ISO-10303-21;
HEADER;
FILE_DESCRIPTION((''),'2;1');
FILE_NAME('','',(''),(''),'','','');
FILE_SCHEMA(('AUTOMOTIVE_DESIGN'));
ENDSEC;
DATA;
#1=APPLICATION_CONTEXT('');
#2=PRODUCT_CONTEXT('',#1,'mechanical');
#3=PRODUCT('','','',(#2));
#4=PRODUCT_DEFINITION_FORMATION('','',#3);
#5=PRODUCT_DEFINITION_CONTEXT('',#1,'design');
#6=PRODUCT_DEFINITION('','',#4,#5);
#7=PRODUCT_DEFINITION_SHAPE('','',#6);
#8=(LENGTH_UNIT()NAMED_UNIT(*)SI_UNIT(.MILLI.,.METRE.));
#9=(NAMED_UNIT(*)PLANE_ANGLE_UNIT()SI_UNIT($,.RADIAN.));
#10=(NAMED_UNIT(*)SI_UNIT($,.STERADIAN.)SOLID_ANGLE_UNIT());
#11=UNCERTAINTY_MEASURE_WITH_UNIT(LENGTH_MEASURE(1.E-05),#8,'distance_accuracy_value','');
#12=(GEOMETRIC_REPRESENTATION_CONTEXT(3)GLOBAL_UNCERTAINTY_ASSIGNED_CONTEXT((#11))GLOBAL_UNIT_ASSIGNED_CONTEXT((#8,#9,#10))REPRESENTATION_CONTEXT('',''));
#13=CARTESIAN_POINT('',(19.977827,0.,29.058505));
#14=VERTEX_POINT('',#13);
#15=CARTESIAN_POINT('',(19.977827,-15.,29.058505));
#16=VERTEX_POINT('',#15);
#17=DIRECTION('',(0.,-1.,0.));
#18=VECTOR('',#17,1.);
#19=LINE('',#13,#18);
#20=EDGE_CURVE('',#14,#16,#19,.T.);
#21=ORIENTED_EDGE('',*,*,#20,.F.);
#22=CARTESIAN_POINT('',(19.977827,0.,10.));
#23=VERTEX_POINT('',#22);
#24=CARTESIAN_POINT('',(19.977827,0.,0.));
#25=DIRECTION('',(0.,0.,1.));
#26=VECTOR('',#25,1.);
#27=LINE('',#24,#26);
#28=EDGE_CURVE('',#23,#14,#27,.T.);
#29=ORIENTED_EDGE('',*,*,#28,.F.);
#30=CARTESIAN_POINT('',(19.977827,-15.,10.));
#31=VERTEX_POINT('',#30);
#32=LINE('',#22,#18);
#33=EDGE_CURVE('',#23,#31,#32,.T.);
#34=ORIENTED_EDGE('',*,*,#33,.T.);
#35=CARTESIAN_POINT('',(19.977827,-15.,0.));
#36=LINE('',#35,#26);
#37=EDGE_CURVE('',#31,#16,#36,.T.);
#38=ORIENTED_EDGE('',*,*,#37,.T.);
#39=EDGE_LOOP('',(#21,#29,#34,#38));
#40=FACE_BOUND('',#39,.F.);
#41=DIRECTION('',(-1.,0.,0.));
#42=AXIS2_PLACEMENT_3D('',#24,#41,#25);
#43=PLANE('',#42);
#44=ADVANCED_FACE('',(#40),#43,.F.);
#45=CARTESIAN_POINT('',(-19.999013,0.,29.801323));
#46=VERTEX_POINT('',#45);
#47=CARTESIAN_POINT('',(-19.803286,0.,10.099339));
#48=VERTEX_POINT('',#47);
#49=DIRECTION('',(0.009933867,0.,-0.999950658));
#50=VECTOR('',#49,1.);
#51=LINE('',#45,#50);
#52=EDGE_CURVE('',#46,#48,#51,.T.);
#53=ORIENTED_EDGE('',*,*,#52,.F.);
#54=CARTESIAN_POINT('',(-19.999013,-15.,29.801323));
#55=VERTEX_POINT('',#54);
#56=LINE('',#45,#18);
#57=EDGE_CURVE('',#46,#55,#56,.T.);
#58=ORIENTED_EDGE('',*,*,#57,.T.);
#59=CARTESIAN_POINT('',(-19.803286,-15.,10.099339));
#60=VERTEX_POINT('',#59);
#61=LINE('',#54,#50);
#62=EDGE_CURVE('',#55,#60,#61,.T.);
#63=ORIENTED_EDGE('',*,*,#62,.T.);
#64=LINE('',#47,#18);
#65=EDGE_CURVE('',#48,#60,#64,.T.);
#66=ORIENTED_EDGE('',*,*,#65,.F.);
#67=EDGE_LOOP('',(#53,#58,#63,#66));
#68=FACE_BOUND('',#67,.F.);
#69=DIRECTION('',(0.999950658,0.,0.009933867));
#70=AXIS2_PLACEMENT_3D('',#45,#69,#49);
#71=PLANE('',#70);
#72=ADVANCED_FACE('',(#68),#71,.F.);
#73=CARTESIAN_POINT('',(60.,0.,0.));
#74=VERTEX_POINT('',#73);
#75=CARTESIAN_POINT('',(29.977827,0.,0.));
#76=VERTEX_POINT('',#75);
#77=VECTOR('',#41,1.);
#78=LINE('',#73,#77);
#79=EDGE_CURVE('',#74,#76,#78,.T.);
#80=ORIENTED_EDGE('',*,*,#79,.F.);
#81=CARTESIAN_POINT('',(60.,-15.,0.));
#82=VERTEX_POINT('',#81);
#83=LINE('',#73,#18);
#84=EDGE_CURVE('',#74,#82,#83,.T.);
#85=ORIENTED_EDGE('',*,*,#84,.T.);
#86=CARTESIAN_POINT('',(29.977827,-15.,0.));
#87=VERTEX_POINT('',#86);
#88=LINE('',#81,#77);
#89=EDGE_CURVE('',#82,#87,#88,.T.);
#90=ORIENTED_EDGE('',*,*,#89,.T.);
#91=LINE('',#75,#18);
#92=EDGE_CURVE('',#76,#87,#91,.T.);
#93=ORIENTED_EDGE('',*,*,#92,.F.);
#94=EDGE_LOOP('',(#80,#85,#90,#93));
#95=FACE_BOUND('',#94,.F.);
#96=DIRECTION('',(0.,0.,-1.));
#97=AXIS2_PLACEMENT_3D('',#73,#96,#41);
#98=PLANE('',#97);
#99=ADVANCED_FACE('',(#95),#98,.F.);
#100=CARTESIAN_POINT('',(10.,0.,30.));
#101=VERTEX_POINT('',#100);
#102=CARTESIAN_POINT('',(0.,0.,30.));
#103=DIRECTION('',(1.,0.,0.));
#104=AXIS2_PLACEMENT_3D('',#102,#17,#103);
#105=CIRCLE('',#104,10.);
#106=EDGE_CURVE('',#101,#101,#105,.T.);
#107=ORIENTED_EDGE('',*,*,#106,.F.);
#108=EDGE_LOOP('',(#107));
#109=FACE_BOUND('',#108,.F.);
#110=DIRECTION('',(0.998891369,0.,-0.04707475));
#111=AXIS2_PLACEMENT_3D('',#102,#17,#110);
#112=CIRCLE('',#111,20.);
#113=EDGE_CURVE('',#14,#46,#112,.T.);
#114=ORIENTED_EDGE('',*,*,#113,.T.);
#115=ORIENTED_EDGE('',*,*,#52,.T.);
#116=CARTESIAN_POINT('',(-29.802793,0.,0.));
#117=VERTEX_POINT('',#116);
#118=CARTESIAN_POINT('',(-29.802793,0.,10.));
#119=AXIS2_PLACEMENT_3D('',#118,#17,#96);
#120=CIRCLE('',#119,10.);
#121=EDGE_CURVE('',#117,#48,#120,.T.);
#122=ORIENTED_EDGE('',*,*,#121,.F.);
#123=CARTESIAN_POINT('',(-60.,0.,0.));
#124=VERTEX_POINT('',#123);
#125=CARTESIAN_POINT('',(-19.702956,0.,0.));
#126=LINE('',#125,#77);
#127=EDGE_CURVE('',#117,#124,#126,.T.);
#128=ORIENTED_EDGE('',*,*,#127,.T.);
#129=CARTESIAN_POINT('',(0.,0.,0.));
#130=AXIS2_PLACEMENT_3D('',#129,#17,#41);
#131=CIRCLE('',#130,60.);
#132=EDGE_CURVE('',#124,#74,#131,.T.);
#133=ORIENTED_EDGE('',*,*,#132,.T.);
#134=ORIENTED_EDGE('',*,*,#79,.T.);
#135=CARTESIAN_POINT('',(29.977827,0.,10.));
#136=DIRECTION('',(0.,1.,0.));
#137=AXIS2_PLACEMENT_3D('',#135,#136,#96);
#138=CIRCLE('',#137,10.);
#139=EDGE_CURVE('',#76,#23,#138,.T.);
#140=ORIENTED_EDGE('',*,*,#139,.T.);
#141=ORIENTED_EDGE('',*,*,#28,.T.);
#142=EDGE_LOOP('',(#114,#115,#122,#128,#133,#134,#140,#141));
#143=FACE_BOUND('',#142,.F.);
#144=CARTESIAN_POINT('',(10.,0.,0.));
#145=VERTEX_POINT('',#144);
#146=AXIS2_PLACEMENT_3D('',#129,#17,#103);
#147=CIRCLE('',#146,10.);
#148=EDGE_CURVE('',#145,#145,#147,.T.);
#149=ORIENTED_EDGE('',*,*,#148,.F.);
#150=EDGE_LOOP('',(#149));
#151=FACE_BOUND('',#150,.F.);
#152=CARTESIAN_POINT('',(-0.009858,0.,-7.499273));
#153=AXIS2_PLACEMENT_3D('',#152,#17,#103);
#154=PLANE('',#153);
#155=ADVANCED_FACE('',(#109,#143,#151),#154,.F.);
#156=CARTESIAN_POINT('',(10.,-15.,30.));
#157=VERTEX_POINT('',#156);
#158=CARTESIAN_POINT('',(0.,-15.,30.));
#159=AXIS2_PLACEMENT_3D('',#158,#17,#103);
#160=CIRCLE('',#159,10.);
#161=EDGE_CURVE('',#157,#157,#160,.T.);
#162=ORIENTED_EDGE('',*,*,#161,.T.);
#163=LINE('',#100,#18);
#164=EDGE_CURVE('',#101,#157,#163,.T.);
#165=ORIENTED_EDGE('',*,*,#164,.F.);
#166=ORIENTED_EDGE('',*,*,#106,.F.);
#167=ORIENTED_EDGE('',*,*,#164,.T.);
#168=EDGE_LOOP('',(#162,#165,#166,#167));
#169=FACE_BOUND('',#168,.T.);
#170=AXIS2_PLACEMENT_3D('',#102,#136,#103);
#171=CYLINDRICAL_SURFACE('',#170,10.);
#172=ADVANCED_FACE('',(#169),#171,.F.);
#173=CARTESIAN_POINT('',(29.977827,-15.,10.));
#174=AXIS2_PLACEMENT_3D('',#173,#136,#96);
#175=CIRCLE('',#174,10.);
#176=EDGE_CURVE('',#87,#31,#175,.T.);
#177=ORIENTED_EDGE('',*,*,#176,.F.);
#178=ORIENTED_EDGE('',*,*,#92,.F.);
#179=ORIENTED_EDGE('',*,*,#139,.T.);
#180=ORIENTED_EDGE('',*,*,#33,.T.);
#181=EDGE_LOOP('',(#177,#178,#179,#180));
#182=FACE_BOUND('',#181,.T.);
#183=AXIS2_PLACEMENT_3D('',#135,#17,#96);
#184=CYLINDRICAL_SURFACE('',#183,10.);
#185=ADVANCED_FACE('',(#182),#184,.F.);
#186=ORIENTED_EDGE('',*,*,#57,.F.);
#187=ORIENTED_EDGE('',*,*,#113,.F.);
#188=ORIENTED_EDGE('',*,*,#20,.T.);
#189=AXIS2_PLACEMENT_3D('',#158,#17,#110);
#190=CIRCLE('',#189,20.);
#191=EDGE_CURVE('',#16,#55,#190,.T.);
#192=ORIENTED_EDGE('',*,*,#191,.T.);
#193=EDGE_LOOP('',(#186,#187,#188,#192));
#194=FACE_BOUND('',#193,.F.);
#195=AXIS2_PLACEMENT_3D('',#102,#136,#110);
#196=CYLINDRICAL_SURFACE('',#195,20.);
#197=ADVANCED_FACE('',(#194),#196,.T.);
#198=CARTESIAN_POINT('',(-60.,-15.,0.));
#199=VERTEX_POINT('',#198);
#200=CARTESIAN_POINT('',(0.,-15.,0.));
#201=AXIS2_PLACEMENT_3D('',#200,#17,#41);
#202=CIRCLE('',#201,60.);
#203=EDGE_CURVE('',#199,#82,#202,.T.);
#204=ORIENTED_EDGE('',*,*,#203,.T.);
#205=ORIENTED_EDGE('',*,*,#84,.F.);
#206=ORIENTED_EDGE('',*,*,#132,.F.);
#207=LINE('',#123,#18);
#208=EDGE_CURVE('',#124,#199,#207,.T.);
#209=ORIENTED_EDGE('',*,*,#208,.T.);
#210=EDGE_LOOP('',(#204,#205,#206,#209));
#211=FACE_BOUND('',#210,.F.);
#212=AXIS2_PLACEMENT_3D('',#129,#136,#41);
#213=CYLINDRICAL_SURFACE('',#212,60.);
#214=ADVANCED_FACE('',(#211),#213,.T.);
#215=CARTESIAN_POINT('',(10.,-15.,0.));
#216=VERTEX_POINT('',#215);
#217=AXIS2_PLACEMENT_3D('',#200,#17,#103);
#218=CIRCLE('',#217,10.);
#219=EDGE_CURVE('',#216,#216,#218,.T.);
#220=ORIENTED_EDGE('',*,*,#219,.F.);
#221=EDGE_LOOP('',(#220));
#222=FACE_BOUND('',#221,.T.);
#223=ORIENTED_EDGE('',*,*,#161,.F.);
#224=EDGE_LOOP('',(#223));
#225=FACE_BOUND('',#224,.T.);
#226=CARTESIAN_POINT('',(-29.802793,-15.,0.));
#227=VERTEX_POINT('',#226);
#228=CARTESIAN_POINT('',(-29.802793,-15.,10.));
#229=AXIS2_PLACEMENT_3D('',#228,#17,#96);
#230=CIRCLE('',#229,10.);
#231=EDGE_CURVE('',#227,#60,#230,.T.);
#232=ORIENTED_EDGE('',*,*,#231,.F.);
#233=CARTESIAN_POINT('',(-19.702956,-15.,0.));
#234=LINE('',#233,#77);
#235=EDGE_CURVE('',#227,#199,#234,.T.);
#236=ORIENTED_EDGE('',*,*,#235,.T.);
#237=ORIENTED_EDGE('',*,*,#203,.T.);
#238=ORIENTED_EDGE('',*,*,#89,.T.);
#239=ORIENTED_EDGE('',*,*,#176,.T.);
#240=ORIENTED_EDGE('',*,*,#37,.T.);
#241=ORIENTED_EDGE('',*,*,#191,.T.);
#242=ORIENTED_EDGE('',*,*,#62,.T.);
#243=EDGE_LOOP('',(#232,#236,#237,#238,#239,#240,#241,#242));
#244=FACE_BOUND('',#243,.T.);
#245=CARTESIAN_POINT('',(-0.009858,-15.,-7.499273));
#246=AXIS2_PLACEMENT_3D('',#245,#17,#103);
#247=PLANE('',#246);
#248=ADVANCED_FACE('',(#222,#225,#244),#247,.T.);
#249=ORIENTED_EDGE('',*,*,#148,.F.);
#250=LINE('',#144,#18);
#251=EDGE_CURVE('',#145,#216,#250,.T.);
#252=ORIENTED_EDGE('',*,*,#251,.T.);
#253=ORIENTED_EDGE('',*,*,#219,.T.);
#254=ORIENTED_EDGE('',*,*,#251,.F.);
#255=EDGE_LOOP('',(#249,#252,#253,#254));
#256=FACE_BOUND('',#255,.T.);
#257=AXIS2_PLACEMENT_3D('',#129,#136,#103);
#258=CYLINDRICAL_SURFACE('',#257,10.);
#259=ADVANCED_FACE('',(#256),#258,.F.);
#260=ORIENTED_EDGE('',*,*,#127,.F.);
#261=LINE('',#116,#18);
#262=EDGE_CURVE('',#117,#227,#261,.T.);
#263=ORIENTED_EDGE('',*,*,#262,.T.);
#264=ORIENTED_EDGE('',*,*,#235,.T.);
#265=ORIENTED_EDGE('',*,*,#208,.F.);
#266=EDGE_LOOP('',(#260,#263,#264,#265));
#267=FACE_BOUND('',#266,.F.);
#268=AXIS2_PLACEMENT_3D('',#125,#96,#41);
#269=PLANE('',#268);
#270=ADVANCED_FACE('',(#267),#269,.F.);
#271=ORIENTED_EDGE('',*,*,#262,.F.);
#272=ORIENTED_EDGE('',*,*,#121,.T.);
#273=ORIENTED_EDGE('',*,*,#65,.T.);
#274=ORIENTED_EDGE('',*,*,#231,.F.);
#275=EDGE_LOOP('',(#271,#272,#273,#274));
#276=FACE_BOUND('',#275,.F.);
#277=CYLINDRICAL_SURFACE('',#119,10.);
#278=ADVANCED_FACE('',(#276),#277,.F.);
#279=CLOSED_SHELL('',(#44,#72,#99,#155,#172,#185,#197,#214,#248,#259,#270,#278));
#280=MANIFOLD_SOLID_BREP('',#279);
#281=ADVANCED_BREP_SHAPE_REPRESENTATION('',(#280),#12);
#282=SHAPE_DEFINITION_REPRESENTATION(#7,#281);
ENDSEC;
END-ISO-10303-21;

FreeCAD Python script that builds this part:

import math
import FreeCAD as App
import Part
import Sketcher

V = App.Vector
Q = App.Units.Quantity


def edges_at(feature, points):
    """Names of the edges that pass closest to the given points."""
    edges = feature.Shape.Edges
    near = lambda p: min(range(len(edges)), key=lambda i: edges[i].distToShape(Part.Vertex(*p))[0])
    return sorted({f"Edge{near(p) + 1}" for p in points})

doc = App.newDocument("Part")
body = doc.addObject("PartDesign::Body", "Body")

# Sketch on XZ plane
sketch1 = body.newObject("Sketcher::SketchObject", "Sketch")
sketch1.AttachmentSupport = (doc.getObject("XZ_Plane"), [""])
sketch1.MapMode = "FlatFace"
sketch1.addGeometry(Part.LineSegment(V(-19.702956, 0, 0), V(-60, 0, 0)), False)
sketch1.addGeometry(Part.ArcOfCircle(Part.Circle(V(0, 0, 0), V(0, 0, 1), 60), math.radians(180), math.radians(360)), False)
sketch1.addGeometry(Part.LineSegment(V(60, 0, 0), V(19.977827, 0, 0)), False)
sketch1.addGeometry(Part.LineSegment(V(19.977827, 0, 0), V(19.977827, 29.058505, 0)), False)
sketch1.addGeometry(Part.ArcOfCircle(Part.Circle(V(0, 30, 0), V(0, 0, 1), 20), math.radians(-2.698182), math.radians(180.569177)), False)
sketch1.addGeometry(Part.LineSegment(V(-19.999013, 29.801323, 0), V(-19.702956, 0, 0)), False)
sketch1.addGeometry(Part.Circle(V(0, 0, 0), V(0, 0, 1), 10), False)
sketch1.addGeometry(Part.Circle(V(0, 30, 0), V(0, 0, 1), 10), False)
sketch1.addConstraint(Sketcher.Constraint("Coincident", 0, 2, 1, 1))
sketch1.addConstraint(Sketcher.Constraint("Coincident", 1, 2, 2, 1))
sketch1.addConstraint(Sketcher.Constraint("Coincident", 2, 2, 3, 1))
sketch1.addConstraint(Sketcher.Constraint("Coincident", 3, 2, 4, 1))
sketch1.addConstraint(Sketcher.Constraint("Tangent", 4, 2, 5, 1))
sketch1.addConstraint(Sketcher.Constraint("Coincident", 5, 2, 0, 1))
sketch1.addConstraint(Sketcher.Constraint("Horizontal", 0))
sketch1.addConstraint(Sketcher.Constraint("Horizontal", 2))
sketch1.addConstraint(Sketcher.Constraint("Vertical", 3))
sketch1.addConstraint(Sketcher.Constraint("Coincident", 1, 3, -1, 1))
sketch1.addConstraint(Sketcher.Constraint("Coincident", 6, 3, -1, 1))
sketch1.addConstraint(Sketcher.Constraint("Coincident", 7, 3, 4, 3))
sketch1.addConstraint(Sketcher.Constraint("Equal", 6, 7))
sketch1.addConstraint(Sketcher.Constraint("PointOnObject", 4, 3, -2))
sketch1.addConstraint(Sketcher.Constraint("PointOnObject", 0, 2, -1))
sketch1.addConstraint(Sketcher.Constraint("PointOnObject", 1, 2, -1))
sketch1.addConstraint(Sketcher.Constraint("Diameter", 6, Q("20 mm")))
sketch1.addConstraint(Sketcher.Constraint("Radius", 1, Q("60 mm")))
sketch1.addConstraint(Sketcher.Constraint("Radius", 4, Q("20 mm")))
sketch1.addConstraint(Sketcher.Constraint("DistanceY", -1, 1, 4, 3, Q("30 mm")))
sketch1.addConstraint(Sketcher.Constraint("DistanceX", 0, 2, 0, 1, Q("40.297044 mm")))
sketch1.addConstraint(Sketcher.Constraint("DistanceX", 2, 2, 2, 1, Q("40.022173 mm")))
pad1 = body.newObject("PartDesign::Pad", "Pad")
pad1.Profile = sketch1
pad1.Length = 15
doc.recompute()

fillet = body.newObject("PartDesign::Fillet", "Fillet")
fillet.Base = (pad1, edges_at(pad1, [(19.978, -7.5, 0)]))
fillet.Radius = 10
doc.recompute()

fillet2 = body.newObject("PartDesign::Fillet", "Fillet001")
fillet2.Base = (fillet, edges_at(fillet, [(-19.703, -7.5, 0)]))
fillet2.Radius = 10

doc.recompute()
